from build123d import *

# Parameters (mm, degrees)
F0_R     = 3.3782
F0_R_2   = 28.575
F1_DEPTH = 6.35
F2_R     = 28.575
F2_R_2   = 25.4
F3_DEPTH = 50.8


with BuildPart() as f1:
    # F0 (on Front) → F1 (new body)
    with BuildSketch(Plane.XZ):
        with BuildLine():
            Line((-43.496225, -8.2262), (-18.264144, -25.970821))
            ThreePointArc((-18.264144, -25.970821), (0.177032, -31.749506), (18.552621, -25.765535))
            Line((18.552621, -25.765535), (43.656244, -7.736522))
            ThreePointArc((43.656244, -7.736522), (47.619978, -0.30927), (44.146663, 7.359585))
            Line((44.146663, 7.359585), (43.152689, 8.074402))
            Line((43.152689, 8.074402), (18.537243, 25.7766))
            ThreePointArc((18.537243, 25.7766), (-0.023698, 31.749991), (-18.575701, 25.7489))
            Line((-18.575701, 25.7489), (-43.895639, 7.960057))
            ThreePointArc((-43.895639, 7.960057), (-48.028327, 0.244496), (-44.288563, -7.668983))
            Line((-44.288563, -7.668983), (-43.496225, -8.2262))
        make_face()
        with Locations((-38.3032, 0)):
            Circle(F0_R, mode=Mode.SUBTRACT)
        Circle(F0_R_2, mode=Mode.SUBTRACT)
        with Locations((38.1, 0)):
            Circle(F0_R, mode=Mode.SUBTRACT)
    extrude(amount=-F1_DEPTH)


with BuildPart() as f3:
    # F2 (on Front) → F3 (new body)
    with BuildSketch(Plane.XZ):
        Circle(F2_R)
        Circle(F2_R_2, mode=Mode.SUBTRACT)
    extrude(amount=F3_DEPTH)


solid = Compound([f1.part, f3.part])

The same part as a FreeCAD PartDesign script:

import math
import FreeCAD as App
import Part
import Sketcher
Q = App.Units.Quantity

doc = App.newDocument("Part")
params = doc.addObject("Spreadsheet::Sheet", "Params")
for row, (alias, value) in enumerate([
    ("sketch1_diameter", "2.25 in"),
    ("sketch1_radius", "1.2500001 in"),
    ("sketch1_radius2", "1.25 in"),
    ("sketch1_diameter2", "0.266 in"),
    ("sketch1_diameter3", "0.266 in"),
    ("pad1_length", "0.25 in"),
    ("sketch2_diameter", "2 in"),
    ("sketch2_diameter2", "2.25 in"),
    ("pad2_length", "2 in"),
], start=1):
    params.set(f"A{row}", alias)
    params.set(f"B{row}", "=" + value)
    params.setAlias(f"B{row}", alias)

body = doc.addObject("PartDesign::Body", "Body")

sketch1 = body.newObject("Sketcher::SketchObject", "Sketch")
sketch1.AttachmentSupport = (doc.getObject("XZ_Plane"), [""])
sketch1.MapMode = "FlatFace"
sketch1.addGeometry([
    Part.LineSegment(App.Vector(-43.496225, -8.2262, 0), App.Vector(-18.264144, -25.970821, 0)),
    Part.ArcOfCircle(Part.Circle(App.Vector(0.000001, 0.000004, 0), App.Vector(0, 0, 1), 31.750004), math.radians(-125.117042), math.radians(-54.244015)),
    Part.LineSegment(App.Vector(18.552621, -25.765535, 0), App.Vector(43.656244, -7.736522, 0)),
    Part.ArcOfCircle(Part.Circle(App.Vector(38.100001, 0, 0), App.Vector(0, 0, 1), 9.524999), math.radians(-54.314713), math.radians(50.593349)),
    Part.LineSegment(App.Vector(44.146663, 7.359585, 0), App.Vector(43.152689, 8.074402, 0)),
    Part.LineSegment(App.Vector(43.152689, 8.074402, 0), App.Vector(18.537243, 25.7766, 0)),
    Part.ArcOfCircle(Part.Circle(App.Vector(0, -0.000001, 0), App.Vector(0, 0, 1), 31.750001), math.radians(54.278199), math.radians(125.807329)),
    Part.LineSegment(App.Vector(-18.575701, 25.7489, 0), App.Vector(-43.895639, 7.960057, 0)),
    Part.ArcOfCircle(Part.Circle(App.Vector(-38.3032, 0, 0), App.Vector(0, 0, 1), 9.7282), math.radians(125.090449), math.radians(232.029254)),
    Part.LineSegment(App.Vector(-44.288563, -7.668983, 0), App.Vector(-43.496225, -8.2262, 0)),
    Part.Circle(App.Vector(-38.3032, 0, 0), App.Vector(0, 0, 1), 3.3782),
    Part.Circle(App.Vector(0, 0, 0), App.Vector(0, 0, 1), 28.575),
    Part.Circle(App.Vector(38.1, 0, 0), App.Vector(0, 0, 1), 3.3782),
], False)
sketch1.addConstraint([
    Sketcher.Constraint("Coincident", 0, 2, 1, 1),
    Sketcher.Constraint("Coincident", 1, 2, 2, 1),
    Sketcher.Constraint("Coincident", 2, 2, 3, 1),
    Sketcher.Constraint("Coincident", 3, 2, 4, 1),
    Sketcher.Constraint("Coincident", 4, 2, 5, 1),
    Sketcher.Constraint("Coincident", 5, 2, 6, 1),
    Sketcher.Constraint("Coincident", 6, 2, 7, 1),
    Sketcher.Constraint("Coincident", 7, 2, 8, 1),
    Sketcher.Constraint("Coincident", 8, 2, 9, 1),
    Sketcher.Constraint("Coincident", 9, 2, 0, 1),
    Sketcher.Constraint("Coincident", 1, 3, -1, 1),
    Sketcher.Constraint("Coincident", 6, 3, -1, 1),
    Sketcher.Constraint("Coincident", 11, 3, -1, 1),
    Sketcher.Constraint("Coincident", 10, 3, 8, 3),
    Sketcher.Constraint("Coincident", 12, 3, 3, 3),
    Sketcher.Constraint("PointOnObject", 3, 3, -1),
    Sketcher.Constraint("PointOnObject", 8, 3, -1),
    Sketcher.Constraint("Diameter", 11, Q("2.25 in")),
    Sketcher.Constraint("Radius", 1, Q("1.2500001 in")),
    Sketcher.Constraint("Radius", 6, Q("1.25 in")),
    Sketcher.Constraint("Diameter", 10, Q("0.266 in")),
    Sketcher.Constraint("Diameter", 12, Q("0.266 in")),
    Sketcher.Constraint("Radius", 3, Q("0.375 in")),
    Sketcher.Constraint("Radius", 8, Q("0.383 in")),
    Sketcher.Constraint("DistanceX", -1, 1, 3, 3, Q("1.5 in")),
    Sketcher.Constraint("DistanceX", 8, 3, -1, 1, Q("1.508 in")),
    Sketcher.Constraint("DistanceY", -1, 1, 4, 2, Q("8.074402 mm")),
    Sketcher.Constraint("DistanceY", -1, 1, 5, 2, Q("25.7766 mm")),
    Sketcher.Constraint("DistanceX", 6, 2, -1, 1, Q("18.575701 mm")),
    Sketcher.Constraint("DistanceY", 9, 2, -1, 1, Q("8.2262 mm")),
    Sketcher.Constraint("Distance", 0, Q("30.846872 mm")),
    Sketcher.Constraint("Distance", 2, Q("30.906912 mm")),
    Sketcher.Constraint("Distance", 7, Q("30.944179 mm")),
    Sketcher.Constraint("DistanceY", 0, 2, -1, 1, Q("25.970821 mm")),
    Sketcher.Constraint("DistanceX", -1, 1, 1, 2, Q("18.552621 mm")),
    Sketcher.Constraint("DistanceX", -1, 1, 4, 2, Q("43.152689 mm")),
    Sketcher.Constraint("DistanceX", 2, 2, 3, 2, Q("0.490419 mm")),
    Sketcher.Constraint("DistanceY", 8, 2, 7, 2, Q("15.62904 mm")),
])
sketch1.setExpression("Constraints[17]", "Params.sketch1_diameter")
sketch1.setExpression("Constraints[18]", "Params.sketch1_radius")
sketch1.setExpression("Constraints[19]", "Params.sketch1_radius2")
sketch1.setExpression("Constraints[20]", "Params.sketch1_diameter2")
sketch1.setExpression("Constraints[21]", "Params.sketch1_diameter3")
pad1 = body.newObject("PartDesign::Pad", "Pad")
pad1.Profile = sketch1
pad1.setExpression("Length", "Params.pad1_length")
pad1.Reversed = True
body2 = doc.addObject("PartDesign::Body", "Body001")

sketch2 = body2.newObject("Sketcher::SketchObject", "Sketch001")
sketch2.AttachmentSupport = (doc.getObject("XZ_Plane001"), [""])
sketch2.MapMode = "FlatFace"
sketch2.addGeometry([
    Part.Circle(App.Vector(0, 0, 0), App.Vector(0, 0, 1), 29),
    Part.Circle(App.Vector(0, 0, 0), App.Vector(0, 0, 1), 25),
], False)
sketch2.addConstraint([
    Sketcher.Constraint("Coincident", 0, 3, -1, 1),
    Sketcher.Constraint("Coincident", 1, 3, -1, 1),
    Sketcher.Constraint("Diameter", 1, Q("2 in")),
    Sketcher.Constraint("Diameter", 0, Q("2.25 in")),
])
sketch2.setExpression("Constraints[2]", "Params.sketch2_diameter")
sketch2.setExpression("Constraints[3]", "Params.sketch2_diameter2")
pad2 = body2.newObject("PartDesign::Pad", "Pad001")
pad2.Profile = sketch2
pad2.setExpression("Length", "Params.pad2_length")

doc.recompute()
